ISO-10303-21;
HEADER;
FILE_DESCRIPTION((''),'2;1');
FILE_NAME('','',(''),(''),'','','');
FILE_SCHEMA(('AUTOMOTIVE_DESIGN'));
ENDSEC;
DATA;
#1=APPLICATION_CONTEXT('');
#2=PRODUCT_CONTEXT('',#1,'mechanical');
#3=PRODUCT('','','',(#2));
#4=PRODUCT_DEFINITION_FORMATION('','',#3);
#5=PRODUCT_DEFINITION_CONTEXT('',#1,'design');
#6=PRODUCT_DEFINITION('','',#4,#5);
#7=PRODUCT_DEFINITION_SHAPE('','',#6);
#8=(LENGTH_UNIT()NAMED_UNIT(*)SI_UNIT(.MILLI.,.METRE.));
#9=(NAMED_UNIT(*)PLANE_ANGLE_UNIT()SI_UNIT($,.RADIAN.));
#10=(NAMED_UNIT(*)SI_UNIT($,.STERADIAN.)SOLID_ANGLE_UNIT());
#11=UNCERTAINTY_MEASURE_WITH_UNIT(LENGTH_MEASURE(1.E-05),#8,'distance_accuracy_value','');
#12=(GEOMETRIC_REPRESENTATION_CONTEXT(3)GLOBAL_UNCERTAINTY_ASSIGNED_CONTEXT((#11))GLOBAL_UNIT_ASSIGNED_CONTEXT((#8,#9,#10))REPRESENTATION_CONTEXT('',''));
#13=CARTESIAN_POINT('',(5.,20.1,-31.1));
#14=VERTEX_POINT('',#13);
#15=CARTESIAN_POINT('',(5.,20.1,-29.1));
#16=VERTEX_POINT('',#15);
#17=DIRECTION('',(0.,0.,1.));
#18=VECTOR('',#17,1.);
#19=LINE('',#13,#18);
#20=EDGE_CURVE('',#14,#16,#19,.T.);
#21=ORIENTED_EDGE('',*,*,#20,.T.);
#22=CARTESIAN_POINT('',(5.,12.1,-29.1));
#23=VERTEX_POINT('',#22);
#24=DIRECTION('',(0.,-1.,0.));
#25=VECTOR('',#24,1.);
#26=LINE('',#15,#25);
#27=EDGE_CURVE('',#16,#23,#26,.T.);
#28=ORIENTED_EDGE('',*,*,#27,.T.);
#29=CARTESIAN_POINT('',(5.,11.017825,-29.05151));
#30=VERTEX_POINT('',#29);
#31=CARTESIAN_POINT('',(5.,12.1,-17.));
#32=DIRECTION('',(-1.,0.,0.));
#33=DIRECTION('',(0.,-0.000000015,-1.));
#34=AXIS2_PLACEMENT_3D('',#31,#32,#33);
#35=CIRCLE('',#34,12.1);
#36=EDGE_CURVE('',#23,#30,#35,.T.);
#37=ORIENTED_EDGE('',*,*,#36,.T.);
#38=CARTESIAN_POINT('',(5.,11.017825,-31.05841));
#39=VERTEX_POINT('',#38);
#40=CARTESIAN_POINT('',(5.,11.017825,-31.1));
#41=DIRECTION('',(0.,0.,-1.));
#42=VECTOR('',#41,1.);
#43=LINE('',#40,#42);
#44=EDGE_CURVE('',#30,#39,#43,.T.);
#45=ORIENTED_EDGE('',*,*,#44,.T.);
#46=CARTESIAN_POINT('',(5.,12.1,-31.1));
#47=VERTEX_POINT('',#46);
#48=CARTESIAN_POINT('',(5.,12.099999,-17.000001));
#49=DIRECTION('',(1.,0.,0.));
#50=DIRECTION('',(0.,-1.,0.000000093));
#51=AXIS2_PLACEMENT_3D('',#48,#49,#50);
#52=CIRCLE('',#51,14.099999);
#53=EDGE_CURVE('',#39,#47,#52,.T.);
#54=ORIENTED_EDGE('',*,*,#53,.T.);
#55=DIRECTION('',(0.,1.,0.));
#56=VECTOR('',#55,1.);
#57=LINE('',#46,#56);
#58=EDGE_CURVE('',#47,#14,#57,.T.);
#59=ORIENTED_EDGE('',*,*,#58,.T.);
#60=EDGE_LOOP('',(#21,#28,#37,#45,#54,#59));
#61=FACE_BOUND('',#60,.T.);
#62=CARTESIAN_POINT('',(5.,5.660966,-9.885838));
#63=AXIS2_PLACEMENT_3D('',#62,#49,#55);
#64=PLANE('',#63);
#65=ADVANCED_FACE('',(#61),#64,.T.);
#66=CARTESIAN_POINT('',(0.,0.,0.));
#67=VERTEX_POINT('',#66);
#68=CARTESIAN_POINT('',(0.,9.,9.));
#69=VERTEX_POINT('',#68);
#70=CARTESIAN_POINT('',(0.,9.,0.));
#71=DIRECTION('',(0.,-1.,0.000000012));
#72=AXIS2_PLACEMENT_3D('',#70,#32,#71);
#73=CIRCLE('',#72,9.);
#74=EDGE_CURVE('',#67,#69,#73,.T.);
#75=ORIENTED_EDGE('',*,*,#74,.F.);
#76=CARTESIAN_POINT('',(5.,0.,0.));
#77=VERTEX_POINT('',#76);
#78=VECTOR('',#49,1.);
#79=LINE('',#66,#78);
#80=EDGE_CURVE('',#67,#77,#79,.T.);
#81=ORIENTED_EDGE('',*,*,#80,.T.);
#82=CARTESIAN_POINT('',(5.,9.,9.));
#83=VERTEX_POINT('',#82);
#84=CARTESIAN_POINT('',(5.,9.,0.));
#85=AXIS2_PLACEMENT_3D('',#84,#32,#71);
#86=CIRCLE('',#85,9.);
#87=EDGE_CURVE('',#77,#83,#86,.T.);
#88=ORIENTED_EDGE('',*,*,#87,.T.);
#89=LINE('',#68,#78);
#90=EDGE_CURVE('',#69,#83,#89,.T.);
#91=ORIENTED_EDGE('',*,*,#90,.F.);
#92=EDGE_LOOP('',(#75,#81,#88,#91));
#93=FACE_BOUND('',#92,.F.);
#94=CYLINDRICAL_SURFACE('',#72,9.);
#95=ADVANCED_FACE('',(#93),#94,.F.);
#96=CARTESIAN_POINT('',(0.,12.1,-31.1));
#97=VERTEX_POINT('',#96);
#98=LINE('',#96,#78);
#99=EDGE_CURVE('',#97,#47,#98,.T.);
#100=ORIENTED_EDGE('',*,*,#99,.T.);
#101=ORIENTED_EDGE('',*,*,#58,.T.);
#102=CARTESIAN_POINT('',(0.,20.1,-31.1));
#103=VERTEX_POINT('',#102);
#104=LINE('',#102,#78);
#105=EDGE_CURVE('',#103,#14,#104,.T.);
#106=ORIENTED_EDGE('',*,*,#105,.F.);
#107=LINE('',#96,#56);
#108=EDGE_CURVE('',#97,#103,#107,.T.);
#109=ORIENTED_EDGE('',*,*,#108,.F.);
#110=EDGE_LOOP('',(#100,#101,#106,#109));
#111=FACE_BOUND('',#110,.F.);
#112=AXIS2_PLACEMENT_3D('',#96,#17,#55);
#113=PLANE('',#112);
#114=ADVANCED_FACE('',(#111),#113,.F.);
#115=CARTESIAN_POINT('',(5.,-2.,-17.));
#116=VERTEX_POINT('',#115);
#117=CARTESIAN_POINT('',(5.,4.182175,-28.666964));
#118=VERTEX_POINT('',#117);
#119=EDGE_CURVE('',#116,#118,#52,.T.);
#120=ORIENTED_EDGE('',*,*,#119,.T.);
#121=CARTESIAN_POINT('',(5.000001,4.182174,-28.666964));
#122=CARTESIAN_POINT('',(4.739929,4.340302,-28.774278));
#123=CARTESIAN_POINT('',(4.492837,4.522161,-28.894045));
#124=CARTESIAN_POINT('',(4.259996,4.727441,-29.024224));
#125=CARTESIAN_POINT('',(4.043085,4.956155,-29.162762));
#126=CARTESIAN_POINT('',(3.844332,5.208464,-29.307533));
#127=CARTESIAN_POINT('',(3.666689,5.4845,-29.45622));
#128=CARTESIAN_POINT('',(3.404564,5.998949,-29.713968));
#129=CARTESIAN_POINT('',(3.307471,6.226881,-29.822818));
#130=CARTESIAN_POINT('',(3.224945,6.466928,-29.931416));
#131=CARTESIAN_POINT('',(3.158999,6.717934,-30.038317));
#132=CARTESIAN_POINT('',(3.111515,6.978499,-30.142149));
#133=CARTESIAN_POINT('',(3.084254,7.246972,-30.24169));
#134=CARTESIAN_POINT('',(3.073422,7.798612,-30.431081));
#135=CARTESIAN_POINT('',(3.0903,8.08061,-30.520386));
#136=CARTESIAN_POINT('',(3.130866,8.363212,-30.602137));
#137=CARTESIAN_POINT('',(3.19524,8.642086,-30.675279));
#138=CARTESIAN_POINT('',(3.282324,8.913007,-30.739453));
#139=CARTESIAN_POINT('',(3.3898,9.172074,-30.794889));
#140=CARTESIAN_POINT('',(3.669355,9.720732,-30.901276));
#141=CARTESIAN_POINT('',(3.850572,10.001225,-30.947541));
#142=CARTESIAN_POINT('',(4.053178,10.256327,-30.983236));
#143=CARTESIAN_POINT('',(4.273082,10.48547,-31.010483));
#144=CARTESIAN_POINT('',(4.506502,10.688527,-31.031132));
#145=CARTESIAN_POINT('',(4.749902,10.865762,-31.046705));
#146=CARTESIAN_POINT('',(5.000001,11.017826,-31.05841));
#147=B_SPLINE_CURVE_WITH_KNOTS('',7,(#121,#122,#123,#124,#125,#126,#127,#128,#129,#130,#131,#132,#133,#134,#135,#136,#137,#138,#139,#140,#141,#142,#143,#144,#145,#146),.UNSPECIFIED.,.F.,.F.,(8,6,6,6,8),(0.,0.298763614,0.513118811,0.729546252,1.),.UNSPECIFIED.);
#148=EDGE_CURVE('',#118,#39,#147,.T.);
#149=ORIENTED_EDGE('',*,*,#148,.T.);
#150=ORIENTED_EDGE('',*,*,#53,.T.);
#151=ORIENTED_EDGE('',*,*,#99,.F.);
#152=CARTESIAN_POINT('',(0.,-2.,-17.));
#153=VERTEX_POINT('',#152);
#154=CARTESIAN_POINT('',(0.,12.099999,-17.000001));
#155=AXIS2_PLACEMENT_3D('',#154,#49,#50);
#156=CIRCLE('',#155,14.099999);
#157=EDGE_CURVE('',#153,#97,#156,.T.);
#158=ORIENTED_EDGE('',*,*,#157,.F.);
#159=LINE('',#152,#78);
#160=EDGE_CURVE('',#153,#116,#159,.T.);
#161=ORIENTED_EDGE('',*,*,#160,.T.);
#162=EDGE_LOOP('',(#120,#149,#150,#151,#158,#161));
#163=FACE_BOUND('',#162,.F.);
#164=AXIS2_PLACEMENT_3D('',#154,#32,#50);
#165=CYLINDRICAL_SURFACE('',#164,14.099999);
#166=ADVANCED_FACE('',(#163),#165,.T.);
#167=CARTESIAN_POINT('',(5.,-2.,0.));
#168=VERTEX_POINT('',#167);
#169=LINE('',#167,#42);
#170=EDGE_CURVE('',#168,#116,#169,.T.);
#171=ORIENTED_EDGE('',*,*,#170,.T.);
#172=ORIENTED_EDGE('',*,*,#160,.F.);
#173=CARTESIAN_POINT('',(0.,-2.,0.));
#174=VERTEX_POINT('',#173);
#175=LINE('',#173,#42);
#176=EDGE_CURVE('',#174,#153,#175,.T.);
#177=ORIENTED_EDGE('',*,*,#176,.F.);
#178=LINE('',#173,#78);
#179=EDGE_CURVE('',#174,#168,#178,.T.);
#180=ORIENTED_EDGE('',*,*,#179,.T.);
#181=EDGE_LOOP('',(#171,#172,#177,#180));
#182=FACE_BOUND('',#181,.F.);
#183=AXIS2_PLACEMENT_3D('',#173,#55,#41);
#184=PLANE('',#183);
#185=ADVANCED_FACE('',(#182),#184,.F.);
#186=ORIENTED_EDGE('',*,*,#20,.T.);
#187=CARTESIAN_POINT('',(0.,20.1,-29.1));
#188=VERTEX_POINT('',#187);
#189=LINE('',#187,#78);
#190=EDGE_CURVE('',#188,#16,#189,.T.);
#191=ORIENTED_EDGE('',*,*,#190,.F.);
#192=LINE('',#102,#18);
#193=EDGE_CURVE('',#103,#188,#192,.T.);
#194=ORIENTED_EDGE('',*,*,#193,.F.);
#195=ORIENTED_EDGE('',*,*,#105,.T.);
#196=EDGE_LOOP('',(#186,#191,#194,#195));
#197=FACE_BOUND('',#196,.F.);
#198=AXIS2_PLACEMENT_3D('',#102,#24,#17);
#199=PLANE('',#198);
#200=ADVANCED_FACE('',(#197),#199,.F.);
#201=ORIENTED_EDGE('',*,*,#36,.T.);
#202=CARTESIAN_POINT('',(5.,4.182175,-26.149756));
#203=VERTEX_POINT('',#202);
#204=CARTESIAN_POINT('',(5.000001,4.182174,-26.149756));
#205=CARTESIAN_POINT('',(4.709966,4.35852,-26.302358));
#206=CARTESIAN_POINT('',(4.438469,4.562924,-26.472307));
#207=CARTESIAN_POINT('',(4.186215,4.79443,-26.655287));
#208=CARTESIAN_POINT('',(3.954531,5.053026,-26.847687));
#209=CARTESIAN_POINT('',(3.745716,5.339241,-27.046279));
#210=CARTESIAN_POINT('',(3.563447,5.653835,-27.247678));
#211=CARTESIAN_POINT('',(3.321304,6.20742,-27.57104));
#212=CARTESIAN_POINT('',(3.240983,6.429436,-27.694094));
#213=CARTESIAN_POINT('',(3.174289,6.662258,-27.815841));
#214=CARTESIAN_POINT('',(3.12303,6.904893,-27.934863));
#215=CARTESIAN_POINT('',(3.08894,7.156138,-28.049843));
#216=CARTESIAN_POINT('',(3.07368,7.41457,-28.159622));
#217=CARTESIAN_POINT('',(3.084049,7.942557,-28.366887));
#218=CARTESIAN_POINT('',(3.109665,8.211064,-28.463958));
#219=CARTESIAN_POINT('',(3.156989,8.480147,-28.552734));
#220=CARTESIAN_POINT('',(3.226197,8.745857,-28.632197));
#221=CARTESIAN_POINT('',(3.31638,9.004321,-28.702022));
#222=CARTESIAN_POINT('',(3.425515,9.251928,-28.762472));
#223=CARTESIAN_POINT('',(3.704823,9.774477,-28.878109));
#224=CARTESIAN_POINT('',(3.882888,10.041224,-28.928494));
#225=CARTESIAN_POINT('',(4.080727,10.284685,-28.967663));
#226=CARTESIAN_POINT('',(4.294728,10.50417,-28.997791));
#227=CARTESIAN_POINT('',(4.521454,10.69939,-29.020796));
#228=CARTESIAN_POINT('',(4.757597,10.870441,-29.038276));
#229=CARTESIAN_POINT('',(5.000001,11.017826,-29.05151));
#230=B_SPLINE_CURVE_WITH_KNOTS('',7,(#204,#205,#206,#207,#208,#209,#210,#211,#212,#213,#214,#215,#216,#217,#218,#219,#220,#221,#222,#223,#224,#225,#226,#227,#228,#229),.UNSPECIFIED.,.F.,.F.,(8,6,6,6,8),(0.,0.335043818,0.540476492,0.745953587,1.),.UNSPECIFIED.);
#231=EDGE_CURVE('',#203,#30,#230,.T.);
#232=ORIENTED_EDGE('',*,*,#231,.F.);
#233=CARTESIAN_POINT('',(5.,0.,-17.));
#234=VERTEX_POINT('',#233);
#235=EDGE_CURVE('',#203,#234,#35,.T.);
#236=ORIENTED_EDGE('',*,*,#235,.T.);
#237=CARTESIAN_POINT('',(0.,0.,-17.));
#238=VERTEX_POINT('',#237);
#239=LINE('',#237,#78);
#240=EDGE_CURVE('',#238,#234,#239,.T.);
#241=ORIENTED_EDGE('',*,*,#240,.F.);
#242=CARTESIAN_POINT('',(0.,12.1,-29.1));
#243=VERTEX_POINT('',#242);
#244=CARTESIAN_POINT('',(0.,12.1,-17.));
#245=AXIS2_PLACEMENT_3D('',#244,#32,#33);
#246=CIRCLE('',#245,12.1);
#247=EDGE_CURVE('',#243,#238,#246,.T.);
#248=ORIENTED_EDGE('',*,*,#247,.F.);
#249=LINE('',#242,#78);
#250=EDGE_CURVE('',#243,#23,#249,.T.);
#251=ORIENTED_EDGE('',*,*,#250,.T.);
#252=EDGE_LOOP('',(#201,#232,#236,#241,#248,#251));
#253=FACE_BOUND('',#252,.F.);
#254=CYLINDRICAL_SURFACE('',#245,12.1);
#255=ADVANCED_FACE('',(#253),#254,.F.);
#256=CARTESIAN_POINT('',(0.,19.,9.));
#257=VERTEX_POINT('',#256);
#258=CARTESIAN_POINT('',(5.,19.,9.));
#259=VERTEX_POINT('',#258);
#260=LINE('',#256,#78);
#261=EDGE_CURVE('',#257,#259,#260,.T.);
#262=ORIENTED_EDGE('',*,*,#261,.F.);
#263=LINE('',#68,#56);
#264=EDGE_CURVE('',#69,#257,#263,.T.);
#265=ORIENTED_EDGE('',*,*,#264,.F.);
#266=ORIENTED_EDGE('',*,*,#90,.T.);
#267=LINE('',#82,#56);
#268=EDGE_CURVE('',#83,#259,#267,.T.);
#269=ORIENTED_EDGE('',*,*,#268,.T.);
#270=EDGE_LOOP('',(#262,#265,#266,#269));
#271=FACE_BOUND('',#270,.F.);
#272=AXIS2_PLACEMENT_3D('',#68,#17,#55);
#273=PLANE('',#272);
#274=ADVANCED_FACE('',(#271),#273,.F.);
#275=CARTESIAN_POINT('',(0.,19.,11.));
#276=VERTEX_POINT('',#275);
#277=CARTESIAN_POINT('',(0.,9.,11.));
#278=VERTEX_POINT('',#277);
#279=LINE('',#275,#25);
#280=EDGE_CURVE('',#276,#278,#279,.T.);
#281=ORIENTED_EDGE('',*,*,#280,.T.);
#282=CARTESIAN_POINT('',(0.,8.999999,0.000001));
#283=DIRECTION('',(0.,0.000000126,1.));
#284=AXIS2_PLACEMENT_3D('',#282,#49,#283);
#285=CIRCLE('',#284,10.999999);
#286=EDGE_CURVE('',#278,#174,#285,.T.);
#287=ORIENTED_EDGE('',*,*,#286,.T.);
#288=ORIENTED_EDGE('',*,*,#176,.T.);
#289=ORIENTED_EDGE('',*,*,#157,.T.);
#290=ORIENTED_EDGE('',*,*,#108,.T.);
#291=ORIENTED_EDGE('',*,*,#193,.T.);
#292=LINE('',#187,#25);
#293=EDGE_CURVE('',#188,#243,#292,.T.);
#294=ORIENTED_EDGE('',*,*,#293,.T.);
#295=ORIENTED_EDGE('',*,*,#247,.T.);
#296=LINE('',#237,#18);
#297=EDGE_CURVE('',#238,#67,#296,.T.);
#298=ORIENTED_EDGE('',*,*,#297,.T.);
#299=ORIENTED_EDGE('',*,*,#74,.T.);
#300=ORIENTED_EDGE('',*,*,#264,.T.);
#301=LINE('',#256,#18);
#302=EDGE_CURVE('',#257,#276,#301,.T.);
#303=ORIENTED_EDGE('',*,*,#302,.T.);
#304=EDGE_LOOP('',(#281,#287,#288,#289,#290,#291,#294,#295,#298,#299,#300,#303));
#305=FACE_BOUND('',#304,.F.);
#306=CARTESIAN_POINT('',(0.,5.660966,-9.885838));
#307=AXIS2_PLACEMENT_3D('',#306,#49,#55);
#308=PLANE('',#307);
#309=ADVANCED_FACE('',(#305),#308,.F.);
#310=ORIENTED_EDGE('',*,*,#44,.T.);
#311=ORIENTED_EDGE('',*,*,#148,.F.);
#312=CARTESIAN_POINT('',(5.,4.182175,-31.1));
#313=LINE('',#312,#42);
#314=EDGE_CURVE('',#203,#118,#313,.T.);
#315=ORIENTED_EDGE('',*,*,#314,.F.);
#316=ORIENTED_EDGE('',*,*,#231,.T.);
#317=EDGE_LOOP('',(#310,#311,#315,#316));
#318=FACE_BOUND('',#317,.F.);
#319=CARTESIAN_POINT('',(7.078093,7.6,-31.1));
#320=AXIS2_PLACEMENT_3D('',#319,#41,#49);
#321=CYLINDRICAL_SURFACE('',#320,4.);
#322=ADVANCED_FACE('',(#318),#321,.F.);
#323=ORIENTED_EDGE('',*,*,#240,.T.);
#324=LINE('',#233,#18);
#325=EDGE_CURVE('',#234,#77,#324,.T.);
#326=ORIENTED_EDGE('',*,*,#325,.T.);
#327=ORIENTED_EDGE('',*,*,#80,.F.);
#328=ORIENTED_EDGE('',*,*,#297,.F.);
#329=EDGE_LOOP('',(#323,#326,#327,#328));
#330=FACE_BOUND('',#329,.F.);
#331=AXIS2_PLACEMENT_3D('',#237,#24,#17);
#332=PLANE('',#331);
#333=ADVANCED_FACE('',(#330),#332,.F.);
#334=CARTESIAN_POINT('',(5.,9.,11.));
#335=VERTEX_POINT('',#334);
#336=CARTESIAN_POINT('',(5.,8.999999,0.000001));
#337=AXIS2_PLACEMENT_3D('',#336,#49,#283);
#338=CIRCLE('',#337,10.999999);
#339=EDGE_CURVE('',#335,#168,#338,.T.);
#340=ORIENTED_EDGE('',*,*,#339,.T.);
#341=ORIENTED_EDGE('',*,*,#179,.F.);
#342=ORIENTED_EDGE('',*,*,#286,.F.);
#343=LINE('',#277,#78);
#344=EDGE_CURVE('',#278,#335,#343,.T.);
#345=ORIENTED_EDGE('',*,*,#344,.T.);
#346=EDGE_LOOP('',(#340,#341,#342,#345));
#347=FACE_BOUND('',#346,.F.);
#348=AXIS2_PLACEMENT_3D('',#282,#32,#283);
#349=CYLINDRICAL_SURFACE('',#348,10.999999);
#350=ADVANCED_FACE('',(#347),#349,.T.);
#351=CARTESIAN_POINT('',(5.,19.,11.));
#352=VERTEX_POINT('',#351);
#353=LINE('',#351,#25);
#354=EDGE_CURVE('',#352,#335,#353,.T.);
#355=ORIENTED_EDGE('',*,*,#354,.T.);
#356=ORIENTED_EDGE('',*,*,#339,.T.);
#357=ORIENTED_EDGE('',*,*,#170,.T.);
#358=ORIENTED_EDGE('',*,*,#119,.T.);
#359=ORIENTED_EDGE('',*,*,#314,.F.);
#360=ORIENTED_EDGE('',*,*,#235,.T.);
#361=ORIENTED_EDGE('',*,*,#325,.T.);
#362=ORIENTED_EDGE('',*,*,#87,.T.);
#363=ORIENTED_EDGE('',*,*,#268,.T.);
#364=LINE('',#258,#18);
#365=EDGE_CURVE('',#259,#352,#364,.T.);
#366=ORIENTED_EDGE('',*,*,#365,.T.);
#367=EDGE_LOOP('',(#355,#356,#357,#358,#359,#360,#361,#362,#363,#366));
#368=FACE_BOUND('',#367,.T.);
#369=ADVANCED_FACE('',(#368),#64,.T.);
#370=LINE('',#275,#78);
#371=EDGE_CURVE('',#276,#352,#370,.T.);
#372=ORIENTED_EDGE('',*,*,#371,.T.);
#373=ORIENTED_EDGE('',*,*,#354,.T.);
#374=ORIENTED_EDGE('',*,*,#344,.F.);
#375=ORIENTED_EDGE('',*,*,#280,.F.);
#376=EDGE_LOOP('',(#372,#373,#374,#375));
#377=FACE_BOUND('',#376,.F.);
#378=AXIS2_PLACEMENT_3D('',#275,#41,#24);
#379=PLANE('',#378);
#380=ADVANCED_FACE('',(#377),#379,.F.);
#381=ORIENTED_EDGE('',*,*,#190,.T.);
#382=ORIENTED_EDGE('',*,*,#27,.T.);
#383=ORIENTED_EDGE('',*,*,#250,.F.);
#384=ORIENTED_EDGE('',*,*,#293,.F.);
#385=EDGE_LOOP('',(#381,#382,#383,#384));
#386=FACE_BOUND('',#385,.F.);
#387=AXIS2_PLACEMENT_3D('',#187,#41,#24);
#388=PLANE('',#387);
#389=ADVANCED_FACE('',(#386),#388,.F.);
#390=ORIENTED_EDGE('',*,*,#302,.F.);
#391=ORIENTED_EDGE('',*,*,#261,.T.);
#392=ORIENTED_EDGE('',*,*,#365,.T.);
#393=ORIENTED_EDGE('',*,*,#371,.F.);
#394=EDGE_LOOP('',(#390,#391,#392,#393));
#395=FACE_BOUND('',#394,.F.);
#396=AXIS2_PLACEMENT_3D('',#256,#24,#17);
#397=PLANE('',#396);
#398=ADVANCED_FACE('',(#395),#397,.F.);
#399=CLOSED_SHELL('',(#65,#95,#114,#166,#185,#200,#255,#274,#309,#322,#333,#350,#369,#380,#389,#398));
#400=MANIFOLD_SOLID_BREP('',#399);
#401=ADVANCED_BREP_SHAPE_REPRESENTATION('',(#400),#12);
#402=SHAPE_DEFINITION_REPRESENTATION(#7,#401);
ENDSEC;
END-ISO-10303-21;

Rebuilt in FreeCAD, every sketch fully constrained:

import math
import FreeCAD as App
import Part
import Sketcher
from FreeCAD import Vector

doc = App.newDocument("Part")
body = doc.addObject("PartDesign::Body", "Body")

# Sketch on YZ plane
sketch1 = doc.addObject("Sketcher::SketchObject", "Sketch")
body.addObject(sketch1)
sketch1.AttachmentSupport = (doc.YZ_Plane, [""])
sketch1.MapMode = "FlatFace"
sketch1.addGeometry(Part.LineSegment(Vector(9, 9, 0), Vector(19, 9, 0)), False)
sketch1.addGeometry(Part.LineSegment(Vector(19, 9, 0), Vector(19, 11, 0)), False)
sketch1.addGeometry(Part.LineSegment(Vector(19, 11, 0), Vector(9, 11, 0)), False)
sketch1.addGeometry(Part.ArcOfCircle(Part.Circle(Vector(9, 0, 0), Vector(0, 0, 1), 11), math.radians(90), math.radians(180)), False)
sketch1.addGeometry(Part.LineSegment(Vector(-2, 0, 0), Vector(-2, -17, 0)), False)
sketch1.addGeometry(Part.ArcOfCircle(Part.Circle(Vector(12.1, -17, 0), Vector(0, 0, 1), 14.1), math.radians(180), math.radians(270)), False)
sketch1.addGeometry(Part.LineSegment(Vector(12.1, -31.1, 0), Vector(20.1, -31.1, 0)), False)
sketch1.addGeometry(Part.LineSegment(Vector(20.1, -31.1, 0), Vector(20.1, -29.1, 0)), False)
sketch1.addGeometry(Part.LineSegment(Vector(20.1, -29.1, 0), Vector(12.1, -29.1, 0)), False)
sketch1.addGeometry(Part.ArcOfCircle(Part.Circle(Vector(12.1, -17, 0), Vector(0, 0, 1), 12.1), math.radians(-180), math.radians(-90)), False)
sketch1.addGeometry(Part.LineSegment(Vector(0, -17, 0), Vector(0, 0, 0)), False)
sketch1.addGeometry(Part.ArcOfCircle(Part.Circle(Vector(9, 0, 0), Vector(0, 0, 1), 9), math.radians(90), math.radians(180)), False)
sketch1.addConstraint(Sketcher.Constraint("Coincident", 0, 2, 1, 1))
sketch1.addConstraint(Sketcher.Constraint("Coincident", 1, 2, 2, 1))
sketch1.addConstraint(Sketcher.Constraint("Tangent", 2, 2, 3, 1))
sketch1.addConstraint(Sketcher.Constraint("Tangent", 3, 2, 4, 1))
sketch1.addConstraint(Sketcher.Constraint("Tangent", 4, 2, 5, 1))
sketch1.addConstraint(Sketcher.Constraint("Tangent", 5, 2, 6, 1))
sketch1.addConstraint(Sketcher.Constraint("Coincident", 6, 2, 7, 1))
sketch1.addConstraint(Sketcher.Constraint("Coincident", 7, 2, 8, 1))
sketch1.addConstraint(Sketcher.Constraint("Tangent", 8, 2, 9, 2))
sketch1.addConstraint(Sketcher.Constraint("Tangent", 9, 1, 10, 1))
sketch1.addConstraint(Sketcher.Constraint("Tangent", 10, 2, 11, 2))
sketch1.addConstraint(Sketcher.Constraint("Tangent", 11, 1, 0, 1))
sketch1.addConstraint(Sketcher.Constraint("Horizontal", 0))
sketch1.addConstraint(Sketcher.Constraint("Vertical", 1))
sketch1.addConstraint(Sketcher.Constraint("Horizontal", 2))
sketch1.addConstraint(Sketcher.Constraint("Vertical", 4))
sketch1.addConstraint(Sketcher.Constraint("Horizontal", 6))
sketch1.addConstraint(Sketcher.Constraint("Vertical", 7))
sketch1.addConstraint(Sketcher.Constraint("Horizontal", 8))
sketch1.addConstraint(Sketcher.Constraint("Vertical", 10))
sketch1.addConstraint(Sketcher.Constraint("Coincident", 10, 2, -1, 1))
sketch1.addConstraint(Sketcher.Constraint("Coincident", 9, 3, 5, 3))
sketch1.addConstraint(Sketcher.Constraint("Coincident", 11, 3, 3, 3))
sketch1.addConstraint(Sketcher.Constraint("Radius", 3, 10.999999))
sketch1.addConstraint(Sketcher.Constraint("Radius", 11, 9.0))
sketch1.addConstraint(Sketcher.Constraint("Radius", 5, 14.099999))
sketch1.addConstraint(Sketcher.Constraint("DistanceX", 0, 1, 0, 2, 10.0))
sketch1.addConstraint(Sketcher.Constraint("DistanceX", 6, 1, 6, 2, 8.0))
sketch1.addConstraint(Sketcher.Constraint("DistanceY", 4, 2, 4, 1, 17.0))
pad1 = doc.addObject("PartDesign::Pad", "Pad")
body.addObject(pad1)
pad1.Profile = sketch1
pad1.Length = 5

# Sketch on XY plane
sketch2 = doc.addObject("Sketcher::SketchObject", "Sketch001")
body.addObject(sketch2)
sketch2.AttachmentSupport = (doc.XY_Plane, [""])
sketch2.MapMode = "FlatFace"
sketch2.AttachmentOffset = App.Placement(Vector(0, 0, -31.1), App.Rotation())
sketch2.addGeometry(Part.Circle(Vector(7.1, 7.6, 0), Vector(0, 0, 1), 4), False)
sketch2.addConstraint(Sketcher.Constraint("Diameter", 0, 8.0))
sketch2.addConstraint(Sketcher.Constraint("DistanceY", -1, 1, 0, 3, 7.6))
sketch2.addConstraint(Sketcher.Constraint("DistanceX", -1, 1, 0, 3, 7.078093))
pocket1 = doc.addObject("PartDesign::Pocket", "Pocket")
body.addObject(pocket1)
pocket1.Profile = sketch2
pocket1.Length = 10
pocket1.Reversed = True

doc.recompute()
